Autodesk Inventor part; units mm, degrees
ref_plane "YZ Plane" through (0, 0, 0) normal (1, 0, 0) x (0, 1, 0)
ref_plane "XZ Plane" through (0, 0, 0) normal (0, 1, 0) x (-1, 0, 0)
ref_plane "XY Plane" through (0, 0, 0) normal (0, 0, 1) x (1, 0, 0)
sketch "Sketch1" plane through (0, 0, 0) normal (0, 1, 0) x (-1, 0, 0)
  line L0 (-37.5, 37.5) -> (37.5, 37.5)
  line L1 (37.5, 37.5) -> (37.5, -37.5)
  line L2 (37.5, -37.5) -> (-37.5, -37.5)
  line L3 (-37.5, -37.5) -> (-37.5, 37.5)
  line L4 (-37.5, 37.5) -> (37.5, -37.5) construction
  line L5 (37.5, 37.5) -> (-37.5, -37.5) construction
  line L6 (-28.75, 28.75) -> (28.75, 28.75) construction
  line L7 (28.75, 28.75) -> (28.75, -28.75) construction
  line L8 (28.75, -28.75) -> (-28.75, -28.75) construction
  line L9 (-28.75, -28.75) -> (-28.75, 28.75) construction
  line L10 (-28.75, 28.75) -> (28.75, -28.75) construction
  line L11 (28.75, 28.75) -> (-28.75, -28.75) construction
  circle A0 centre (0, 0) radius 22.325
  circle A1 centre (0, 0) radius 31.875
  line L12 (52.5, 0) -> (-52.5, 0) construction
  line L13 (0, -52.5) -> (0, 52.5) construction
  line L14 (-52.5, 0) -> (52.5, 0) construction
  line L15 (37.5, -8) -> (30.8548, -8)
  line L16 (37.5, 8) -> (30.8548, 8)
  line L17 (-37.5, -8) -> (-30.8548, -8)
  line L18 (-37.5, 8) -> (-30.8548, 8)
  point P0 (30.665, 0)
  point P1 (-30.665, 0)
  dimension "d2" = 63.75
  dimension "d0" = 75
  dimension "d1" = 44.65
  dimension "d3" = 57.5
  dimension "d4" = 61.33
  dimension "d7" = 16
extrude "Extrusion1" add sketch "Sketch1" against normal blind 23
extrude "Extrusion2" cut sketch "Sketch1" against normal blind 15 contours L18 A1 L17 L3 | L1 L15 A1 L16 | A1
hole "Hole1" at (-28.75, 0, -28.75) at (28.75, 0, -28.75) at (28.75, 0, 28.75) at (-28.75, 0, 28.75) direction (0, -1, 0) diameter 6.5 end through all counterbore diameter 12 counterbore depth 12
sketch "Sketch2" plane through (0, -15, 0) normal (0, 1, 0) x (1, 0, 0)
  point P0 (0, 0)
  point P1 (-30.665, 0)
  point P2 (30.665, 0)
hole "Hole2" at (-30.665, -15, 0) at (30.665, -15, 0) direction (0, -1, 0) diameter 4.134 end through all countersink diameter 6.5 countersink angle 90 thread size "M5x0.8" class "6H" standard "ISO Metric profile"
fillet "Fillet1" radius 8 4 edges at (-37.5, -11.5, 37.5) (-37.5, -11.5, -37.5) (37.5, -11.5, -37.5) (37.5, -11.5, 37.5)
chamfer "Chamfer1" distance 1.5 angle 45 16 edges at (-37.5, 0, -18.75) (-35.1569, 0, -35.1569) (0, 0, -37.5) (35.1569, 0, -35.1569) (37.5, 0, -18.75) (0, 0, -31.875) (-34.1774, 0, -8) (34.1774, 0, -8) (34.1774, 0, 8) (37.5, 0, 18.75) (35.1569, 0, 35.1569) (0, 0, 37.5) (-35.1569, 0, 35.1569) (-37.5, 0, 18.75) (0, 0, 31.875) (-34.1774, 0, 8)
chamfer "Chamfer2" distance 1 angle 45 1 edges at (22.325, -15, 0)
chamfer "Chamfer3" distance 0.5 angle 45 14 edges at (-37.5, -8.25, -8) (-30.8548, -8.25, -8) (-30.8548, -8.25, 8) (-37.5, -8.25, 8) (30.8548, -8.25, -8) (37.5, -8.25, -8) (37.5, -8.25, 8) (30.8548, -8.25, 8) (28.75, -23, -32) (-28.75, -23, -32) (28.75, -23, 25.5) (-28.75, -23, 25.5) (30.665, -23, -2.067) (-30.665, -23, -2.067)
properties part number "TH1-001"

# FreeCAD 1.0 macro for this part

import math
import FreeCAD as App
import Part
import Sketcher
Q = App.Units.Quantity


def edges_at(feature, points):
    """Names of the edges that pass closest to the given points."""
    edges = feature.Shape.Edges
    near = lambda p: min(range(len(edges)), key=lambda i: edges[i].distToShape(Part.Vertex(*p))[0])
    return sorted({f"Edge{near(p) + 1}" for p in points})

doc = App.newDocument("Part")
body = doc.addObject("PartDesign::Body", "Body")

# Sketch on XZ plane
sketch1 = body.newObject("Sketcher::SketchObject", "Sketch")
sketch1.AttachmentSupport = (doc.getObject("XZ_Plane"), [""])
sketch1.MapMode = "FlatFace"
sketch1.addGeometry([
    Part.LineSegment(App.Vector(-38, 38, 0), App.Vector(38, 38, 0)),  # 0
    Part.LineSegment(App.Vector(38, 38, 0), App.Vector(38, -38, 0)),  # 1
    Part.LineSegment(App.Vector(38, -38, 0), App.Vector(-38, -38, 0)),  # 2
    Part.LineSegment(App.Vector(-38, -38, 0), App.Vector(-38, 38, 0)),  # 3
    Part.Circle(App.Vector(0, 0, 0), App.Vector(0, 0, 1), 22),  # 4
], False)
sketch1.addConstraint([
    Sketcher.Constraint("Coincident", 0, 2, 1, 1),
    Sketcher.Constraint("Coincident", 1, 2, 2, 1),
    Sketcher.Constraint("Coincident", 2, 2, 3, 1),
    Sketcher.Constraint("Coincident", 3, 2, 0, 1),
    Sketcher.Constraint("Horizontal", 0),
    Sketcher.Constraint("Vertical", 1),
    Sketcher.Constraint("Horizontal", 2),
    Sketcher.Constraint("Vertical", 3),
    Sketcher.Constraint("Coincident", 4, 3, -1, 1),
    Sketcher.Constraint("Symmetric", 0, 2, 2, 2, -1, 1),
    Sketcher.Constraint("Equal", 2, 1),
    Sketcher.Constraint("Diameter", 4, Q("44.65 mm")),
    Sketcher.Constraint("DistanceX", 0, 1, 0, 2, Q("75 mm")),
])
pad1 = body.newObject("PartDesign::Pad", "Pad")
pad1.Profile = sketch1
pad1.Length = 23

# Sketch on XZ plane
sketch2 = body.newObject("Sketcher::SketchObject", "Sketch001")
sketch2.AttachmentSupport = (doc.getObject("XZ_Plane"), [""])
sketch2.MapMode = "FlatFace"
sketch2.addGeometry([
    Part.LineSegment(App.Vector(31, 8, 0), App.Vector(38, 8, 0)),  # 0
    Part.LineSegment(App.Vector(38, 8, 0), App.Vector(38, -8, 0)),  # 1
    Part.LineSegment(App.Vector(38, -8, 0), App.Vector(31, -8, 0)),  # 2
    Part.ArcOfCircle(Part.Circle(App.Vector(0, 0, 0), App.Vector(0, 0, 1), 32), math.radians(-165), math.radians(-15)),  # 3
    Part.LineSegment(App.Vector(-31, -8, 0), App.Vector(-38, -8, 0)),  # 4
    Part.LineSegment(App.Vector(-38, -8, 0), App.Vector(-38, 8, 0)),  # 5
    Part.LineSegment(App.Vector(-38, 8, 0), App.Vector(-31, 8, 0)),  # 6
    Part.ArcOfCircle(Part.Circle(App.Vector(0, 0, 0), App.Vector(0, 0, 1), 32), math.radians(15), math.radians(165)),  # 7
    Part.Circle(App.Vector(0, 0, 0), App.Vector(0, 0, 1), 22),  # 8
], False)
sketch2.addConstraint([
    Sketcher.Constraint("Coincident", 0, 2, 1, 1),
    Sketcher.Constraint("Coincident", 1, 2, 2, 1),
    Sketcher.Constraint("Coincident", 2, 2, 3, 2),
    Sketcher.Constraint("Coincident", 3, 1, 4, 1),
    Sketcher.Constraint("Coincident", 4, 2, 5, 1),
    Sketcher.Constraint("Coincident", 5, 2, 6, 1),
    Sketcher.Constraint("Coincident", 6, 2, 7, 2),
    Sketcher.Constraint("Coincident", 7, 1, 0, 1),
    Sketcher.Constraint("Horizontal", 0),
    Sketcher.Constraint("Vertical", 1),
    Sketcher.Constraint("Horizontal", 2),
    Sketcher.Constraint("Horizontal", 4),
    Sketcher.Constraint("Vertical", 5),
    Sketcher.Constraint("Horizontal", 6),
    Sketcher.Constraint("Coincident", 3, 3, -1, 1),
    Sketcher.Constraint("Coincident", 7, 3, -1, 1),
    Sketcher.Constraint("Coincident", 8, 3, -1, 1),
    Sketcher.Constraint("Equal", 3, 7),
    Sketcher.Constraint("Symmetric", 0, 2, 4, 2, -1, 1),
    Sketcher.Constraint("Horizontal", 2, 2, 3, 1),
    Sketcher.Constraint("Horizontal", 0, 2, 5, 2),
    Sketcher.Constraint("Diameter", 8, Q("44.65 mm")),
    Sketcher.Constraint("DistanceY", 1, 2, 1, 1, Q("16 mm")),
    Sketcher.Constraint("Radius", 3, Q("31.875 mm")),
    Sketcher.Constraint("DistanceX", -1, 1, 0, 2, Q("37.5 mm")),
])
pocket1 = body.newObject("PartDesign::Pocket", "Pocket")
pocket1.Profile = sketch2
pocket1.Length = 15
pocket1.Reversed = True

# Sketch on XZ plane
sketch3 = body.newObject("Sketcher::SketchObject", "Sketch002")
sketch3.AttachmentSupport = (doc.getObject("XZ_Plane"), [""])
sketch3.MapMode = "FlatFace"
sketch3.addGeometry([
    Part.Circle(App.Vector(-28.8, -28.8, 0), App.Vector(0, 0, 1), 3.2),
    Part.Circle(App.Vector(28.8, -28.8, 0), App.Vector(0, 0, 1), 3.2),
    Part.Circle(App.Vector(28.8, 28.8, 0), App.Vector(0, 0, 1), 3.2),
    Part.Circle(App.Vector(-28.8, 28.8, 0), App.Vector(0, 0, 1), 3.2),
], False)
sketch3.addConstraint([
    Sketcher.Constraint("Equal", 0, 1),
    Sketcher.Constraint("Equal", 1, 2),
    Sketcher.Constraint("Equal", 2, 3),
    Sketcher.Constraint("Symmetric", 0, 3, 2, 3, -1, 1),
    Sketcher.Constraint("Symmetric", 1, 3, 3, 3, -1, 1),
    Sketcher.Constraint("Symmetric", 0, 3, 1, 3, -2),
    Sketcher.Constraint("Diameter", 0, Q("6.5 mm")),
    Sketcher.Constraint("DistanceX", 0, 3, 1, 3, Q("57.5 mm")),
    Sketcher.Constraint("DistanceY", 1, 3, 2, 3, Q("57.5 mm")),
])
doc.recompute()
hole = body.newObject("PartDesign::Hole", "Hole")
hole.Profile = sketch3
hole.ThreadType = "None"
hole.Diameter = 6.5
hole.DepthType = "ThroughAll"
hole.HoleCutType = "Counterbore"
hole.HoleCutDiameter = 12
hole.HoleCutDepth = 12
hole.Reversed = True

# Sketch on XZ plane
sketch4 = body.newObject("Sketcher::SketchObject", "Sketch003")
sketch4.AttachmentSupport = (doc.getObject("XZ_Plane"), [""])
sketch4.MapMode = "FlatFace"
sketch4.AttachmentOffset = App.Placement(App.Vector(0, 0, 15), App.Rotation())
sketch4.addGeometry([
    Part.Circle(App.Vector(-30.7, 0, 0), App.Vector(0, 0, 1), 2.1),
    Part.Circle(App.Vector(30.7, 0, 0), App.Vector(0, 0, 1), 2.1),
], False)
sketch4.addConstraint([
    Sketcher.Constraint("Equal", 0, 1),
    Sketcher.Constraint("Symmetric", 0, 3, 1, 3, -1, 1),
    Sketcher.Constraint("PointOnObject", 0, 3, -1),
    Sketcher.Constraint("Diameter", 0, Q("4.134 mm")),
    Sketcher.Constraint("DistanceX", 0, 3, 1, 3, Q("61.33 mm")),
])
doc.recompute()
hole2 = body.newObject("PartDesign::Hole", "Hole001")
hole2.Profile = sketch4
hole2.ThreadType = "None"
hole2.Diameter = 4.134
hole2.DepthType = "ThroughAll"
hole2.HoleCutType = "Countersink"
hole2.HoleCutDiameter = 6.5
hole2.HoleCutCountersinkAngle = 90
hole2.Reversed = True
doc.recompute()

fillet = body.newObject("PartDesign::Fillet", "Fillet")
fillet.Base = (hole2, edges_at(hole2, [
    (-37.5, -11.5, 37.5),
    (-37.5, -11.5, -37.5),
    (37.5, -11.5, -37.5),
    (37.5, -11.5, 37.5),
]))
fillet.Radius = 8
doc.recompute()

chamfer = body.newObject("PartDesign::Chamfer", "Chamfer")
chamfer.Base = (fillet, edges_at(fillet, [
    (-37.5, 0, -18.75),
    (-35.157, 0, -35.157),
    (0, 0, -37.5),
    (35.157, 0, -35.157),
    (37.5, 0, -18.75),
    (0, 0, -31.875),
    (-34.177, 0, -8),
    (34.177, 0, -8),
    (34.177, 0, 8),
    (37.5, 0, 18.75),
    (35.157, 0, 35.157),
    (0, 0, 37.5),
    (-35.157, 0, 35.157),
    (-37.5, 0, 18.75),
    (0, 0, 31.875),
    (-34.177, 0, 8),
]))
chamfer.Size = 1.5
doc.recompute()

chamfer2 = body.newObject("PartDesign::Chamfer", "Chamfer001")
chamfer2.Base = (chamfer, edges_at(chamfer, [(22.325, -15, 0)]))
chamfer2.Size = 1
doc.recompute()

chamfer3 = body.newObject("PartDesign::Chamfer", "Chamfer002")
chamfer3.Base = (chamfer2, edges_at(chamfer2, [
    (-37.5, -8.25, -8),
    (-30.855, -8.25, -8),
    (-30.855, -8.25, 8),
    (-37.5, -8.25, 8),
    (30.855, -8.25, -8),
    (37.5, -8.25, -8),
    (37.5, -8.25, 8),
    (30.855, -8.25, 8),
    (28.75, -23, -32),
    (-28.75, -23, -32),
    (28.75, -23, 25.5),
    (-28.75, -23, 25.5),
    (30.665, -23, -2.067),
    (-30.665, -23, -2.067),
]))
chamfer3.Size = 0.5

doc.recompute()
